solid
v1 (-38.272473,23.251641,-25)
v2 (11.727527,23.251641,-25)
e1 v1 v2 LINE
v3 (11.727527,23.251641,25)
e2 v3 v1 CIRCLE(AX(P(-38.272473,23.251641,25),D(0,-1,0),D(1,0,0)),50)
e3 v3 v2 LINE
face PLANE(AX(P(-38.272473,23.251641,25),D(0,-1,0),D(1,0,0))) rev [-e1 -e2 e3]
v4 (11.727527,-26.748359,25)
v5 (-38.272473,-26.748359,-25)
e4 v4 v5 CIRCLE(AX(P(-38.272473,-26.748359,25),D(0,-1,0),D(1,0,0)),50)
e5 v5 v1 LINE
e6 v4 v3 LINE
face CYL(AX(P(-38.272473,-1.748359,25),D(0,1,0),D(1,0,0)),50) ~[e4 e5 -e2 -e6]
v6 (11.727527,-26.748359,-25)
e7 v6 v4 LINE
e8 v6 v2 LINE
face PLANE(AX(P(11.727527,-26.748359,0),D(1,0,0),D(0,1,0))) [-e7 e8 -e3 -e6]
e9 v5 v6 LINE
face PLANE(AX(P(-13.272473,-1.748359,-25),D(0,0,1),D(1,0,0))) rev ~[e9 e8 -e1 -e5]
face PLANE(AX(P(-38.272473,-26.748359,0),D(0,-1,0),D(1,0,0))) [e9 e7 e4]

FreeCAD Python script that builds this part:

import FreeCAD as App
import Part
import Sketcher
from FreeCAD import Vector
Q = App.Units.Quantity

doc = App.newDocument("Part")
body = doc.addObject("PartDesign::Body", "Body")

# Sketch on XY plane
sketch1 = body.newObject("Sketcher::SketchObject", "Sketch")
sketch1.AttachmentSupport = (doc.getObject("XY_Plane"), [""])
sketch1.MapMode = "FlatFace"
sketch1.addGeometry([
    Part.LineSegment(Vector(-38, 23, 0), Vector(-38, -27, 0)),
    Part.LineSegment(Vector(-38, -27, 0), Vector(12, -27, 0)),
    Part.LineSegment(Vector(12, -27, 0), Vector(12, 23, 0)),
    Part.LineSegment(Vector(12, 23, 0), Vector(-38, 23, 0)),
], False)
sketch1.addConstraint([
    Sketcher.Constraint("Coincident", 0, 2, 1, 1),
    Sketcher.Constraint("Coincident", 1, 2, 2, 1),
    Sketcher.Constraint("Coincident", 2, 2, 3, 1),
    Sketcher.Constraint("Coincident", 3, 2, 0, 1),
    Sketcher.Constraint("Vertical", 0),
    Sketcher.Constraint("Horizontal", 1),
    Sketcher.Constraint("Vertical", 2),
    Sketcher.Constraint("Horizontal", 3),
    Sketcher.Constraint("Equal", 3, 0),
    Sketcher.Constraint("DistanceX", 1, 1, 1, 2, Q("50 mm")),
    Sketcher.Constraint("DistanceY", 0, 2, -1, 1, Q("26.748359 mm")),
    Sketcher.Constraint("DistanceX", 0, 2, -1, 1, Q("38.272473 mm")),
])
pad1 = body.newObject("PartDesign::Pad", "Pad")
pad1.Profile = sketch1
pad1.Length = 50
pad1.Midplane = True

# Sketch on XY plane
sketch2 = body.newObject("Sketcher::SketchObject", "Sketch001")
sketch2.AttachmentSupport = (doc.getObject("XY_Plane"), [""])
sketch2.MapMode = "FlatFace"
sketch2.AttachmentOffset = App.Placement(Vector(0, 0, 25), App.Rotation())
sketch2.addGeometry([
    Part.LineSegment(Vector(-38, 23, 0), Vector(-38, -27, 0)),
    Part.LineSegment(Vector(-38, -27, 0), Vector(12, -27, 0)),
    Part.LineSegment(Vector(12, -27, 0), Vector(12, 23, 0)),
    Part.LineSegment(Vector(12, 23, 0), Vector(-38, 23, 0)),
], False)
sketch2.addGeometry(Part.LineSegment(Vector(-38, 23, 0), Vector(-38, -27, 0)), True)  # axis
sketch2.addConstraint([
    Sketcher.Constraint("Coincident", 0, 2, 1, 1),
    Sketcher.Constraint("Coincident", 1, 2, 2, 1),
    Sketcher.Constraint("Coincident", 2, 2, 3, 1),
    Sketcher.Constraint("Coincident", 3, 2, 0, 1),
    Sketcher.Constraint("Vertical", 0),
    Sketcher.Constraint("Horizontal", 1),
    Sketcher.Constraint("Vertical", 2),
    Sketcher.Constraint("Horizontal", 3),
    Sketcher.Constraint("Vertical", 4),
    Sketcher.Constraint("Coincident", 4, 1, 3, 2),
    Sketcher.Constraint("Horizontal", 1, 2, 4, 2),
    Sketcher.Constraint("Equal", 3, 0),
    Sketcher.Constraint("DistanceX", 1, 1, 1, 2, Q("50 mm")),
    Sketcher.Constraint("DistanceY", 0, 2, -1, 1, Q("26.748359 mm")),
    Sketcher.Constraint("DistanceX", 0, 2, -1, 1, Q("38.272473 mm")),
])
revolution = body.newObject("PartDesign::Revolution", "Revolution")
revolution.Profile = sketch2
revolution.ReferenceAxis = (sketch2, ["Axis0"])
revolution.Angle = 360

doc.recompute()
